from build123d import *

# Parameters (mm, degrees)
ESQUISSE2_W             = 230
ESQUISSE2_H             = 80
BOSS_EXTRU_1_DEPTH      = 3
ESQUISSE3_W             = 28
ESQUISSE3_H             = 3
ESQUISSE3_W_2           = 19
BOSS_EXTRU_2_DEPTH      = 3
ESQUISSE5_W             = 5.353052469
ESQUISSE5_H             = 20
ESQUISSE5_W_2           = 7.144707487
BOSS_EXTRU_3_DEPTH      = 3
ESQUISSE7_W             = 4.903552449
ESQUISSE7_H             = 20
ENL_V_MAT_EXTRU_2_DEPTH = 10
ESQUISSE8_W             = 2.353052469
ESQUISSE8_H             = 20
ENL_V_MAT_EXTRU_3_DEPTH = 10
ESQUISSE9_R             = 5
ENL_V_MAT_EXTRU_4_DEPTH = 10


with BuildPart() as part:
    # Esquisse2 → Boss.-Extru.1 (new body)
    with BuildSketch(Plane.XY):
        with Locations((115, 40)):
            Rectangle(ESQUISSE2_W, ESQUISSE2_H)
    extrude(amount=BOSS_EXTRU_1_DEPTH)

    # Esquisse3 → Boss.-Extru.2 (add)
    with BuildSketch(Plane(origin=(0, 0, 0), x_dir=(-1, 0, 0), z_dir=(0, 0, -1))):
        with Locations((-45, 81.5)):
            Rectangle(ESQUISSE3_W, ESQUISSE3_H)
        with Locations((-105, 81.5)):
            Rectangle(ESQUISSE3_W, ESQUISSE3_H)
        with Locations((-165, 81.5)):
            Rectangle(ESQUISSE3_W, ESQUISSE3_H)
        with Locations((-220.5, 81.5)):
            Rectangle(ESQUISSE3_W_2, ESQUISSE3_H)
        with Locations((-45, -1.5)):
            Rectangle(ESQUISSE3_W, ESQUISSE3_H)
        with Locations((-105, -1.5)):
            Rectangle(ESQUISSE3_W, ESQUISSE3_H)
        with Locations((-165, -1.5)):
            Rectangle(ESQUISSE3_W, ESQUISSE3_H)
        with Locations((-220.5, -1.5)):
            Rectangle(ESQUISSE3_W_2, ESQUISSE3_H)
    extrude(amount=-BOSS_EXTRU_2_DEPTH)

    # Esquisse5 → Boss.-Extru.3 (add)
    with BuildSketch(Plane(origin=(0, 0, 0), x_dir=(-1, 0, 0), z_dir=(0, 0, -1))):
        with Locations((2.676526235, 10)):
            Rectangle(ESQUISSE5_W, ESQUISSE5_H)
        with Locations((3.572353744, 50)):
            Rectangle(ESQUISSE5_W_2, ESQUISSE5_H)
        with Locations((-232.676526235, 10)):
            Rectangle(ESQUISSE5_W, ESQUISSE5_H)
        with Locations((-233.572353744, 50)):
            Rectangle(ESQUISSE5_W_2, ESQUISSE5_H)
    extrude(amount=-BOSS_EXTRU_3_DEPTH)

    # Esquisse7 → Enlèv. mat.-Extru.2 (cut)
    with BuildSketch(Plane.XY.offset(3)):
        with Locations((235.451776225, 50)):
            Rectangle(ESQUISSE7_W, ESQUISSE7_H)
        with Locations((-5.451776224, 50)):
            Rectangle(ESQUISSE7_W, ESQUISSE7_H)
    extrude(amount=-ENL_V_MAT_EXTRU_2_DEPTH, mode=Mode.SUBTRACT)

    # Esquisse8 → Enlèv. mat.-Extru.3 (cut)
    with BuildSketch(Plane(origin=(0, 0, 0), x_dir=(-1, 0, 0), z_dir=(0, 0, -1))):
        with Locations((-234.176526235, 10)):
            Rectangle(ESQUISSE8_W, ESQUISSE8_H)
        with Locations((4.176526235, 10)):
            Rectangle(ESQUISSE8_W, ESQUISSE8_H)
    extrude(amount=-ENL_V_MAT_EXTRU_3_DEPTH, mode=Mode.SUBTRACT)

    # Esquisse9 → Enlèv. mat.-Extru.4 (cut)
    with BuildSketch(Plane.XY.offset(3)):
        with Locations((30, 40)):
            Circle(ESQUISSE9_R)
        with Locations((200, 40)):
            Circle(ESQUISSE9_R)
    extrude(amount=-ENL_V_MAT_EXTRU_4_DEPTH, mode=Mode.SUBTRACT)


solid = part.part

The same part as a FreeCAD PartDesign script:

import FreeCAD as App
import Part
import Sketcher

V = App.Vector

doc = App.newDocument("Part")
body = doc.addObject("PartDesign::Body", "Body")

# Sketch on XY plane
sketch1 = body.newObject("Sketcher::SketchObject", "Sketch")
sketch1.AttachmentSupport = (doc.getObject("XY_Plane"), [""])
sketch1.MapMode = "FlatFace"
sketch1.addGeometry(Part.LineSegment(V(0, 80, 0), V(0, 0, 0)), False)
sketch1.addGeometry(Part.LineSegment(V(0, 0, 0), V(230, 0, 0)), False)
sketch1.addGeometry(Part.LineSegment(V(230, 0, 0), V(230, 80, 0)), False)
sketch1.addGeometry(Part.LineSegment(V(230, 80, 0), V(0, 80, 0)), False)
sketch1.addConstraint(Sketcher.Constraint("Coincident", 0, 2, 1, 1))
sketch1.addConstraint(Sketcher.Constraint("Coincident", 1, 2, 2, 1))
sketch1.addConstraint(Sketcher.Constraint("Coincident", 2, 2, 3, 1))
sketch1.addConstraint(Sketcher.Constraint("Coincident", 3, 2, 0, 1))
sketch1.addConstraint(Sketcher.Constraint("Vertical", 0))
sketch1.addConstraint(Sketcher.Constraint("Horizontal", 1))
sketch1.addConstraint(Sketcher.Constraint("Vertical", 2))
sketch1.addConstraint(Sketcher.Constraint("Horizontal", 3))
sketch1.addConstraint(Sketcher.Constraint("Coincident", 0, 2, -1, 1))
sketch1.addConstraint(Sketcher.Constraint("DistanceX", 1, 1, 1, 2, 230.0))
sketch1.addConstraint(Sketcher.Constraint("DistanceY", 0, 2, 0, 1, 80.0))
pad1 = body.newObject("PartDesign::Pad", "Pad")
pad1.Profile = sketch1
pad1.Length = 3

# Sketch on XY plane
sketch2 = body.newObject("Sketcher::SketchObject", "Sketch001")
sketch2.AttachmentSupport = (doc.getObject("XY_Plane"), [""])
sketch2.MapMode = "FlatFace"
sketch2.addGeometry(Part.LineSegment(V(59, 83, 0), V(59, 80, 0)), False)
sketch2.addGeometry(Part.LineSegment(V(59, 80, 0), V(31, 80, 0)), False)
sketch2.addGeometry(Part.LineSegment(V(31, 80, 0), V(31, 83, 0)), False)
sketch2.addGeometry(Part.LineSegment(V(31, 83, 0), V(59, 83, 0)), False)
sketch2.addGeometry(Part.LineSegment(V(119, 83, 0), V(119, 80, 0)), False)
sketch2.addGeometry(Part.LineSegment(V(119, 80, 0), V(91, 80, 0)), False)
sketch2.addGeometry(Part.LineSegment(V(91, 80, 0), V(91, 83, 0)), False)
sketch2.addGeometry(Part.LineSegment(V(91, 83, 0), V(119, 83, 0)), False)
sketch2.addGeometry(Part.LineSegment(V(179, 83, 0), V(179, 80, 0)), False)
sketch2.addGeometry(Part.LineSegment(V(179, 80, 0), V(151, 80, 0)), False)
sketch2.addGeometry(Part.LineSegment(V(151, 80, 0), V(151, 83, 0)), False)
sketch2.addGeometry(Part.LineSegment(V(151, 83, 0), V(179, 83, 0)), False)
sketch2.addGeometry(Part.LineSegment(V(230, 83, 0), V(230, 80, 0)), False)
sketch2.addGeometry(Part.LineSegment(V(230, 80, 0), V(211, 80, 0)), False)
sketch2.addGeometry(Part.LineSegment(V(211, 80, 0), V(211, 83, 0)), False)
sketch2.addGeometry(Part.LineSegment(V(211, 83, 0), V(230, 83, 0)), False)
sketch2.addGeometry(Part.LineSegment(V(59, 0, 0), V(59, -3, 0)), False)
sketch2.addGeometry(Part.LineSegment(V(59, -3, 0), V(31, -3, 0)), False)
sketch2.addGeometry(Part.LineSegment(V(31, -3, 0), V(31, 0, 0)), False)
sketch2.addGeometry(Part.LineSegment(V(31, 0, 0), V(59, 0, 0)), False)
sketch2.addGeometry(Part.LineSegment(V(119, 0, 0), V(119, -3, 0)), False)
sketch2.addGeometry(Part.LineSegment(V(119, -3, 0), V(91, -3, 0)), False)
sketch2.addGeometry(Part.LineSegment(V(91, -3, 0), V(91, 0, 0)), False)
sketch2.addGeometry(Part.LineSegment(V(91, 0, 0), V(119, 0, 0)), False)
sketch2.addGeometry(Part.LineSegment(V(179, 0, 0), V(179, -3, 0)), False)
sketch2.addGeometry(Part.LineSegment(V(179, -3, 0), V(151, -3, 0)), False)
sketch2.addGeometry(Part.LineSegment(V(151, -3, 0), V(151, 0, 0)), False)
sketch2.addGeometry(Part.LineSegment(V(151, 0, 0), V(179, 0, 0)), False)
sketch2.addGeometry(Part.LineSegment(V(230, 0, 0), V(230, -3, 0)), False)
sketch2.addGeometry(Part.LineSegment(V(230, -3, 0), V(211, -3, 0)), False)
sketch2.addGeometry(Part.LineSegment(V(211, -3, 0), V(211, 0, 0)), False)
sketch2.addGeometry(Part.LineSegment(V(211, 0, 0), V(230, 0, 0)), False)
sketch2.addConstraint(Sketcher.Constraint("Coincident", 0, 2, 1, 1))
sketch2.addConstraint(Sketcher.Constraint("Coincident", 1, 2, 2, 1))
sketch2.addConstraint(Sketcher.Constraint("Coincident", 2, 2, 3, 1))
sketch2.addConstraint(Sketcher.Constraint("Coincident", 3, 2, 0, 1))
sketch2.addConstraint(Sketcher.Constraint("Coincident", 4, 2, 5, 1))
sketch2.addConstraint(Sketcher.Constraint("Coincident", 5, 2, 6, 1))
sketch2.addConstraint(Sketcher.Constraint("Coincident", 6, 2, 7, 1))
sketch2.addConstraint(Sketcher.Constraint("Coincident", 7, 2, 4, 1))
sketch2.addConstraint(Sketcher.Constraint("Coincident", 8, 2, 9, 1))
sketch2.addConstraint(Sketcher.Constraint("Coincident", 9, 2, 10, 1))
sketch2.addConstraint(Sketcher.Constraint("Coincident", 10, 2, 11, 1))
sketch2.addConstraint(Sketcher.Constraint("Coincident", 11, 2, 8, 1))
sketch2.addConstraint(Sketcher.Constraint("Coincident", 12, 2, 13, 1))
sketch2.addConstraint(Sketcher.Constraint("Coincident", 13, 2, 14, 1))
sketch2.addConstraint(Sketcher.Constraint("Coincident", 14, 2, 15, 1))
sketch2.addConstraint(Sketcher.Constraint("Coincident", 15, 2, 12, 1))
sketch2.addConstraint(Sketcher.Constraint("Coincident", 16, 2, 17, 1))
sketch2.addConstraint(Sketcher.Constraint("Coincident", 17, 2, 18, 1))
sketch2.addConstraint(Sketcher.Constraint("Coincident", 18, 2, 19, 1))
sketch2.addConstraint(Sketcher.Constraint("Coincident", 19, 2, 16, 1))
sketch2.addConstraint(Sketcher.Constraint("Coincident", 20, 2, 21, 1))
sketch2.addConstraint(Sketcher.Constraint("Coincident", 21, 2, 22, 1))
sketch2.addConstraint(Sketcher.Constraint("Coincident", 22, 2, 23, 1))
sketch2.addConstraint(Sketcher.Constraint("Coincident", 23, 2, 20, 1))
sketch2.addConstraint(Sketcher.Constraint("Coincident", 24, 2, 25, 1))
sketch2.addConstraint(Sketcher.Constraint("Coincident", 25, 2, 26, 1))
sketch2.addConstraint(Sketcher.Constraint("Coincident", 26, 2, 27, 1))
sketch2.addConstraint(Sketcher.Constraint("Coincident", 27, 2, 24, 1))
sketch2.addConstraint(Sketcher.Constraint("Coincident", 28, 2, 29, 1))
sketch2.addConstraint(Sketcher.Constraint("Coincident", 29, 2, 30, 1))
sketch2.addConstraint(Sketcher.Constraint("Coincident", 30, 2, 31, 1))
sketch2.addConstraint(Sketcher.Constraint("Coincident", 31, 2, 28, 1))
sketch2.addConstraint(Sketcher.Constraint("Vertical", 0))
sketch2.addConstraint(Sketcher.Constraint("Horizontal", 1))
sketch2.addConstraint(Sketcher.Constraint("Vertical", 2))
sketch2.addConstraint(Sketcher.Constraint("Horizontal", 3))
sketch2.addConstraint(Sketcher.Constraint("Vertical", 4))
sketch2.addConstraint(Sketcher.Constraint("Horizontal", 5))
sketch2.addConstraint(Sketcher.Constraint("Vertical", 6))
sketch2.addConstraint(Sketcher.Constraint("Horizontal", 7))
sketch2.addConstraint(Sketcher.Constraint("Vertical", 8))
sketch2.addConstraint(Sketcher.Constraint("Horizontal", 9))
sketch2.addConstraint(Sketcher.Constraint("Vertical", 10))
sketch2.addConstraint(Sketcher.Constraint("Horizontal", 11))
sketch2.addConstraint(Sketcher.Constraint("Vertical", 12))
sketch2.addConstraint(Sketcher.Constraint("Horizontal", 13))
sketch2.addConstraint(Sketcher.Constraint("Vertical", 14))
sketch2.addConstraint(Sketcher.Constraint("Horizontal", 15))
sketch2.addConstraint(Sketcher.Constraint("Vertical", 16))
sketch2.addConstraint(Sketcher.Constraint("Horizontal", 17))
sketch2.addConstraint(Sketcher.Constraint("Vertical", 18))
sketch2.addConstraint(Sketcher.Constraint("Horizontal", 19))
sketch2.addConstraint(Sketcher.Constraint("Vertical", 20))
sketch2.addConstraint(Sketcher.Constraint("Horizontal", 21))
sketch2.addConstraint(Sketcher.Constraint("Vertical", 22))
sketch2.addConstraint(Sketcher.Constraint("Horizontal", 23))
sketch2.addConstraint(Sketcher.Constraint("Vertical", 24))
sketch2.addConstraint(Sketcher.Constraint("Horizontal", 25))
sketch2.addConstraint(Sketcher.Constraint("Vertical", 26))
sketch2.addConstraint(Sketcher.Constraint("Horizontal", 27))
sketch2.addConstraint(Sketcher.Constraint("Vertical", 28))
sketch2.addConstraint(Sketcher.Constraint("Horizontal", 29))
sketch2.addConstraint(Sketcher.Constraint("Vertical", 30))
sketch2.addConstraint(Sketcher.Constraint("Horizontal", 31))
sketch2.addConstraint(Sketcher.Constraint("PointOnObject", 18, 2, -1))
sketch2.addConstraint(Sketcher.Constraint("PointOnObject", 22, 2, -1))
sketch2.addConstraint(Sketcher.Constraint("PointOnObject", 26, 2, -1))
sketch2.addConstraint(Sketcher.Constraint("PointOnObject", 30, 2, -1))
sketch2.addConstraint(Sketcher.Constraint("Horizontal", 1, 2, 4, 2))
sketch2.addConstraint(Sketcher.Constraint("Horizontal", 3, 2, 6, 2))
sketch2.addConstraint(Sketcher.Constraint("Horizontal", 5, 2, 8, 2))
sketch2.addConstraint(Sketcher.Constraint("Horizontal", 7, 2, 10, 2))
sketch2.addConstraint(Sketcher.Constraint("Horizontal", 9, 2, 12, 2))
sketch2.addConstraint(Sketcher.Constraint("Horizontal", 11, 2, 14, 2))
sketch2.addConstraint(Sketcher.Constraint("Horizontal", 17, 2, 20, 2))
sketch2.addConstraint(Sketcher.Constraint("Horizontal", 21, 2, 24, 2))
sketch2.addConstraint(Sketcher.Constraint("Horizontal", 25, 2, 28, 2))
sketch2.addConstraint(Sketcher.Constraint("Vertical", 3, 2, 16, 2))
sketch2.addConstraint(Sketcher.Constraint("Vertical", 2, 2, 17, 2))
sketch2.addConstraint(Sketcher.Constraint("Vertical", 7, 2, 20, 2))
sketch2.addConstraint(Sketcher.Constraint("Vertical", 6, 2, 21, 2))
sketch2.addConstraint(Sketcher.Constraint("Vertical", 11, 2, 24, 2))
sketch2.addConstraint(Sketcher.Constraint("Vertical", 10, 2, 25, 2))
sketch2.addConstraint(Sketcher.Constraint("Vertical", 15, 2, 28, 2))
sketch2.addConstraint(Sketcher.Constraint("Vertical", 14, 2, 29, 2))
sketch2.addConstraint(Sketcher.Constraint("Equal", 3, 5))
sketch2.addConstraint(Sketcher.Constraint("Equal", 7, 9))
sketch2.addConstraint(Sketcher.Constraint("Equal", 14, 16))
sketch2.addConstraint(Sketcher.Constraint("DistanceX", 1, 2, 1, 1, 28.0))
sketch2.addConstraint(Sketcher.Constraint("DistanceX", 13, 2, 13, 1, 19.0))
sketch2.addConstraint(Sketcher.Constraint("DistanceY", 0, 2, 0, 1, 3.0))
sketch2.addConstraint(Sketcher.Constraint("DistanceX", -1, 1, 0, 2, 59.0))
sketch2.addConstraint(Sketcher.Constraint("DistanceY", -1, 1, 0, 2, 80.0))
sketch2.addConstraint(Sketcher.Constraint("DistanceX", -1, 1, 4, 2, 119.0))
sketch2.addConstraint(Sketcher.Constraint("DistanceX", -1, 1, 8, 2, 179.0))
sketch2.addConstraint(Sketcher.Constraint("DistanceX", -1, 1, 12, 2, 230.0))
pad2 = body.newObject("PartDesign::Pad", "Pad001")
pad2.Profile = sketch2
pad2.Length = 3

# Sketch on XY plane
sketch3 = body.newObject("Sketcher::SketchObject", "Sketch002")
sketch3.AttachmentSupport = (doc.getObject("XY_Plane"), [""])
sketch3.MapMode = "FlatFace"
sketch3.addGeometry(Part.LineSegment(V(0, 20, 0), V(0, 0, 0)), False)
sketch3.addGeometry(Part.LineSegment(V(0, 0, 0), V(-5, 0, 0)), False)
sketch3.addGeometry(Part.LineSegment(V(-5, 0, 0), V(-5, 20, 0)), False)
sketch3.addGeometry(Part.LineSegment(V(-5, 20, 0), V(0, 20, 0)), False)
sketch3.addGeometry(Part.LineSegment(V(0, 60, 0), V(0, 40, 0)), False)
sketch3.addGeometry(Part.LineSegment(V(0, 40, 0), V(-7, 40, 0)), False)
sketch3.addGeometry(Part.LineSegment(V(-7, 40, 0), V(-7, 60, 0)), False)
sketch3.addGeometry(Part.LineSegment(V(-7, 60, 0), V(0, 60, 0)), False)
sketch3.addGeometry(Part.LineSegment(V(235, 20, 0), V(235, 0, 0)), False)
sketch3.addGeometry(Part.LineSegment(V(235, 0, 0), V(230, 0, 0)), False)
sketch3.addGeometry(Part.LineSegment(V(230, 0, 0), V(230, 20, 0)), False)
sketch3.addGeometry(Part.LineSegment(V(230, 20, 0), V(235, 20, 0)), False)
sketch3.addGeometry(Part.LineSegment(V(237, 60, 0), V(237, 40, 0)), False)
sketch3.addGeometry(Part.LineSegment(V(237, 40, 0), V(230, 40, 0)), False)
sketch3.addGeometry(Part.LineSegment(V(230, 40, 0), V(230, 60, 0)), False)
sketch3.addGeometry(Part.LineSegment(V(230, 60, 0), V(237, 60, 0)), False)
sketch3.addConstraint(Sketcher.Constraint("Coincident", 0, 2, 1, 1))
sketch3.addConstraint(Sketcher.Constraint("Coincident", 1, 2, 2, 1))
sketch3.addConstraint(Sketcher.Constraint("Coincident", 2, 2, 3, 1))
sketch3.addConstraint(Sketcher.Constraint("Coincident", 3, 2, 0, 1))
sketch3.addConstraint(Sketcher.Constraint("Coincident", 4, 2, 5, 1))
sketch3.addConstraint(Sketcher.Constraint("Coincident", 5, 2, 6, 1))
sketch3.addConstraint(Sketcher.Constraint("Coincident", 6, 2, 7, 1))
sketch3.addConstraint(Sketcher.Constraint("Coincident", 7, 2, 4, 1))
sketch3.addConstraint(Sketcher.Constraint("Coincident", 8, 2, 9, 1))
sketch3.addConstraint(Sketcher.Constraint("Coincident", 9, 2, 10, 1))
sketch3.addConstraint(Sketcher.Constraint("Coincident", 10, 2, 11, 1))
sketch3.addConstraint(Sketcher.Constraint("Coincident", 11, 2, 8, 1))
sketch3.addConstraint(Sketcher.Constraint("Coincident", 12, 2, 13, 1))
sketch3.addConstraint(Sketcher.Constraint("Coincident", 13, 2, 14, 1))
sketch3.addConstraint(Sketcher.Constraint("Coincident", 14, 2, 15, 1))
sketch3.addConstraint(Sketcher.Constraint("Coincident", 15, 2, 12, 1))
sketch3.addConstraint(Sketcher.Constraint("Vertical", 0))
sketch3.addConstraint(Sketcher.Constraint("Horizontal", 1))
sketch3.addConstraint(Sketcher.Constraint("Vertical", 2))
sketch3.addConstraint(Sketcher.Constraint("Horizontal", 3))
sketch3.addConstraint(Sketcher.Constraint("Vertical", 4))
sketch3.addConstraint(Sketcher.Constraint("Horizontal", 5))
sketch3.addConstraint(Sketcher.Constraint("Vertical", 6))
sketch3.addConstraint(Sketcher.Constraint("Horizontal", 7))
sketch3.addConstraint(Sketcher.Constraint("Vertical", 8))
sketch3.addConstraint(Sketcher.Constraint("Horizontal", 9))
sketch3.addConstraint(Sketcher.Constraint("Vertical", 10))
sketch3.addConstraint(Sketcher.Constraint("Horizontal", 11))
sketch3.addConstraint(Sketcher.Constraint("Vertical", 12))
sketch3.addConstraint(Sketcher.Constraint("Horizontal", 13))
sketch3.addConstraint(Sketcher.Constraint("Vertical", 14))
sketch3.addConstraint(Sketcher.Constraint("Horizontal", 15))
sketch3.addConstraint(Sketcher.Constraint("Coincident", 0, 2, -1, 1))
sketch3.addConstraint(Sketcher.Constraint("PointOnObject", 4, 2, -2))
sketch3.addConstraint(Sketcher.Constraint("PointOnObject", 8, 2, -1))
sketch3.addConstraint(Sketcher.Constraint("Horizontal", 3, 2, 10, 2))
sketch3.addConstraint(Sketcher.Constraint("Horizontal", 5, 2, 12, 2))
sketch3.addConstraint(Sketcher.Constraint("Horizontal", 7, 2, 14, 2))
sketch3.addConstraint(Sketcher.Constraint("Vertical", 10, 2, 13, 2))
sketch3.addConstraint(Sketcher.Constraint("Equal", 3, 9))
sketch3.addConstraint(Sketcher.Constraint("Equal", 7, 13))
sketch3.addConstraint(Sketcher.Constraint("Equal", 2, 4))
sketch3.addConstraint(Sketcher.Constraint("DistanceY", 0, 2, 0, 1, 20.0))
sketch3.addConstraint(Sketcher.Constraint("DistanceY", -1, 1, 4, 2, 40.0))
sketch3.addConstraint(Sketcher.Constraint("DistanceX", -1, 1, 9, 2, 230.0))
sketch3.addConstraint(Sketcher.Constraint("DistanceX", 1, 2, 1, 1, 5.353052))
sketch3.addConstraint(Sketcher.Constraint("DistanceX", 5, 2, 5, 1, 7.144707))
pad3 = body.newObject("PartDesign::Pad", "Pad002")
pad3.Profile = sketch3
pad3.Length = 3

# Sketch on XY plane
sketch4 = body.newObject("Sketcher::SketchObject", "Sketch003")
sketch4.AttachmentSupport = (doc.getObject("XY_Plane"), [""])
sketch4.MapMode = "FlatFace"
sketch4.AttachmentOffset = App.Placement(V(0, 0, 3), App.Rotation())
sketch4.addGeometry(Part.LineSegment(V(233, 60, 0), V(233, 40, 0)), False)
sketch4.addGeometry(Part.LineSegment(V(233, 40, 0), V(237.9, 40, 0)), False)
sketch4.addGeometry(Part.LineSegment(V(237.9, 40, 0), V(237.9, 60, 0)), False)
sketch4.addGeometry(Part.LineSegment(V(237.9, 60, 0), V(233, 60, 0)), False)
sketch4.addGeometry(Part.LineSegment(V(-7.9, 60, 0), V(-7.9, 40, 0)), False)
sketch4.addGeometry(Part.LineSegment(V(-7.9, 40, 0), V(-3, 40, 0)), False)
sketch4.addGeometry(Part.LineSegment(V(-3, 40, 0), V(-3, 60, 0)), False)
sketch4.addGeometry(Part.LineSegment(V(-3, 60, 0), V(-7.9, 60, 0)), False)
sketch4.addConstraint(Sketcher.Constraint("Coincident", 0, 2, 1, 1))
sketch4.addConstraint(Sketcher.Constraint("Coincident", 1, 2, 2, 1))
sketch4.addConstraint(Sketcher.Constraint("Coincident", 2, 2, 3, 1))
sketch4.addConstraint(Sketcher.Constraint("Coincident", 3, 2, 0, 1))
sketch4.addConstraint(Sketcher.Constraint("Coincident", 4, 2, 5, 1))
sketch4.addConstraint(Sketcher.Constraint("Coincident", 5, 2, 6, 1))
sketch4.addConstraint(Sketcher.Constraint("Coincident", 6, 2, 7, 1))
sketch4.addConstraint(Sketcher.Constraint("Coincident", 7, 2, 4, 1))
sketch4.addConstraint(Sketcher.Constraint("Vertical", 0))
sketch4.addConstraint(Sketcher.Constraint("Horizontal", 1))
sketch4.addConstraint(Sketcher.Constraint("Vertical", 2))
sketch4.addConstraint(Sketcher.Constraint("Horizontal", 3))
sketch4.addConstraint(Sketcher.Constraint("Vertical", 4))
sketch4.addConstraint(Sketcher.Constraint("Horizontal", 5))
sketch4.addConstraint(Sketcher.Constraint("Vertical", 6))
sketch4.addConstraint(Sketcher.Constraint("Horizontal", 7))
sketch4.addConstraint(Sketcher.Constraint("Horizontal", 1, 2, 4, 2))
sketch4.addConstraint(Sketcher.Constraint("Horizontal", 3, 2, 6, 2))
sketch4.addConstraint(Sketcher.Constraint("Equal", 3, 5))
sketch4.addConstraint(Sketcher.Constraint("DistanceY", 0, 2, 0, 1, 20.0))
sketch4.addConstraint(Sketcher.Constraint("DistanceX", -1, 1, 0, 2, 233.0))
sketch4.addConstraint(Sketcher.Constraint("DistanceY", -1, 1, 0, 2, 40.0))
sketch4.addConstraint(Sketcher.Constraint("DistanceX", 5, 2, -1, 1, 3.0))
sketch4.addConstraint(Sketcher.Constraint("DistanceX", 1, 1, 1, 2, 4.903552))
pocket1 = body.newObject("PartDesign::Pocket", "Pocket")
pocket1.Profile = sketch4
pocket1.Length = 10

# Sketch on XY plane
sketch5 = body.newObject("Sketcher::SketchObject", "Sketch004")
sketch5.AttachmentSupport = (doc.getObject("XY_Plane"), [""])
sketch5.MapMode = "FlatFace"
sketch5.addGeometry(Part.LineSegment(V(235.4, 20, 0), V(235.4, 0, 0)), False)
sketch5.addGeometry(Part.LineSegment(V(235.4, 0, 0), V(233, 0, 0)), False)
sketch5.addGeometry(Part.LineSegment(V(233, 0, 0), V(233, 20, 0)), False)
sketch5.addGeometry(Part.LineSegment(V(233, 20, 0), V(235.4, 20, 0)), False)
sketch5.addGeometry(Part.LineSegment(V(-3, 20, 0), V(-3, 0, 0)), False)
sketch5.addGeometry(Part.LineSegment(V(-3, 0, 0), V(-5.4, 0, 0)), False)
sketch5.addGeometry(Part.LineSegment(V(-5.4, 0, 0), V(-5.4, 20, 0)), False)
sketch5.addGeometry(Part.LineSegment(V(-5.4, 20, 0), V(-3, 20, 0)), False)
sketch5.addConstraint(Sketcher.Constraint("Coincident", 0, 2, 1, 1))
sketch5.addConstraint(Sketcher.Constraint("Coincident", 1, 2, 2, 1))
sketch5.addConstraint(Sketcher.Constraint("Coincident", 2, 2, 3, 1))
sketch5.addConstraint(Sketcher.Constraint("Coincident", 3, 2, 0, 1))
sketch5.addConstraint(Sketcher.Constraint("Coincident", 4, 2, 5, 1))
sketch5.addConstraint(Sketcher.Constraint("Coincident", 5, 2, 6, 1))
sketch5.addConstraint(Sketcher.Constraint("Coincident", 6, 2, 7, 1))
sketch5.addConstraint(Sketcher.Constraint("Coincident", 7, 2, 4, 1))
sketch5.addConstraint(Sketcher.Constraint("Vertical", 0))
sketch5.addConstraint(Sketcher.Constraint("Horizontal", 1))
sketch5.addConstraint(Sketcher.Constraint("Vertical", 2))
sketch5.addConstraint(Sketcher.Constraint("Horizontal", 3))
sketch5.addConstraint(Sketcher.Constraint("Vertical", 4))
sketch5.addConstraint(Sketcher.Constraint("Horizontal", 5))
sketch5.addConstraint(Sketcher.Constraint("Vertical", 6))
sketch5.addConstraint(Sketcher.Constraint("Horizontal", 7))
sketch5.addConstraint(Sketcher.Constraint("PointOnObject", 0, 2, -1))
sketch5.addConstraint(Sketcher.Constraint("PointOnObject", 4, 2, -1))
sketch5.addConstraint(Sketcher.Constraint("Horizontal", 3, 2, 6, 2))
sketch5.addConstraint(Sketcher.Constraint("Equal", 3, 5))
sketch5.addConstraint(Sketcher.Constraint("DistanceY", 0, 2, 0, 1, 20.0))
sketch5.addConstraint(Sketcher.Constraint("DistanceX", -1, 1, 1, 2, 233.0))
sketch5.addConstraint(Sketcher.Constraint("DistanceX", 4, 2, -1, 1, 3.0))
sketch5.addConstraint(Sketcher.Constraint("DistanceX", 1, 2, 1, 1, 2.353052))
pocket2 = body.newObject("PartDesign::Pocket", "Pocket001")
pocket2.Profile = sketch5
pocket2.Length = 10
pocket2.Reversed = True

# Sketch on XY plane
sketch6 = body.newObject("Sketcher::SketchObject", "Sketch005")
sketch6.AttachmentSupport = (doc.getObject("XY_Plane"), [""])
sketch6.MapMode = "FlatFace"
sketch6.AttachmentOffset = App.Placement(V(0, 0, 3), App.Rotation())
sketch6.addGeometry(Part.Circle(V(30, 40, 0), V(0, 0, 1), 5), False)
sketch6.addGeometry(Part.Circle(V(200, 40, 0), V(0, 0, 1), 5), False)
sketch6.addConstraint(Sketcher.Constraint("Equal", 0, 1))
sketch6.addConstraint(Sketcher.Constraint("Horizontal", 0, 3, 1, 3))
sketch6.addConstraint(Sketcher.Constraint("Diameter", 0, 10.0))
sketch6.addConstraint(Sketcher.Constraint("DistanceX", -1, 1, 0, 3, 30.0))
sketch6.addConstraint(Sketcher.Constraint("DistanceY", -1, 1, 0, 3, 40.0))
sketch6.addConstraint(Sketcher.Constraint("DistanceX", -1, 1, 1, 3, 200.0))
pocket3 = body.newObject("PartDesign::Pocket", "Pocket002")
pocket3.Profile = sketch6
pocket3.Length = 10

doc.recompute()
